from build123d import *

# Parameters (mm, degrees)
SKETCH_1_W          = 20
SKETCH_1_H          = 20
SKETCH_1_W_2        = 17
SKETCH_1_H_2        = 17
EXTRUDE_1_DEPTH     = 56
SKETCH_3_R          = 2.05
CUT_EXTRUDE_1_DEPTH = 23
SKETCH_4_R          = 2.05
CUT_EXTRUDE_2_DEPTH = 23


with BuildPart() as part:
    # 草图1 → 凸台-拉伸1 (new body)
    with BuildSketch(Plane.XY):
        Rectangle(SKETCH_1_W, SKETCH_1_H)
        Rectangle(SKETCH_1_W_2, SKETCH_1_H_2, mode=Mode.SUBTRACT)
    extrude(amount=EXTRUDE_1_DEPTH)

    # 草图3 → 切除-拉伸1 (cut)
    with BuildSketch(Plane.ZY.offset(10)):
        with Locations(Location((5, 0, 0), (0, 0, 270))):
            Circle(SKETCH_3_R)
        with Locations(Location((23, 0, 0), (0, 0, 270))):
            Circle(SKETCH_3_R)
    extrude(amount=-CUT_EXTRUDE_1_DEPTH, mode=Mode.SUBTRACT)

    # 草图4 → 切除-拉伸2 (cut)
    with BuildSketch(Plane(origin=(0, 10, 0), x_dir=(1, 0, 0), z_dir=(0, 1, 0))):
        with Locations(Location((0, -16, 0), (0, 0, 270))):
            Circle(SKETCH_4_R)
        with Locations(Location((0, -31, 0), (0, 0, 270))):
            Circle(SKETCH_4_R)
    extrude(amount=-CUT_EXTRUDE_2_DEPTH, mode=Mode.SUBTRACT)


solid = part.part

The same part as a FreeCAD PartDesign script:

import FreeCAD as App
import Part
import Sketcher
from FreeCAD import Vector
Q = App.Units.Quantity

doc = App.newDocument("Part")
params = doc.addObject("Spreadsheet::Sheet", "Params")
for row, (alias, value) in enumerate([
    ("sketch1_width", "20 mm"),
    ("sketch1_width2", "17 mm"),
    ("pad1_length", "56 mm"),
    ("sketch2_diameter", "4.1 mm"),
    ("pocket1_length", "23 mm"),
    ("sketch3_diameter", "4.1 mm"),
    ("pocket2_length", "23 mm"),
], start=1):
    params.set(f"A{row}", alias)
    params.set(f"B{row}", "=" + value)
    params.setAlias(f"B{row}", alias)

body = doc.addObject("PartDesign::Body", "Body")

sketch1 = doc.addObject("Sketcher::SketchObject", "Sketch")
body.addObject(sketch1)
sketch1.AttachmentSupport = (doc.XY_Plane, [""])
sketch1.MapMode = "FlatFace"
sketch1.addGeometry([
    Part.LineSegment(Vector(-10, 10, 0), Vector(-10, -10, 0)),
    Part.LineSegment(Vector(-10, -10, 0), Vector(10, -10, 0)),
    Part.LineSegment(Vector(10, -10, 0), Vector(10, 10, 0)),
    Part.LineSegment(Vector(10, 10, 0), Vector(-10, 10, 0)),
    Part.LineSegment(Vector(8, -8, 0), Vector(-8, -8, 0)),
    Part.LineSegment(Vector(-8, -8, 0), Vector(-8, 8, 0)),
    Part.LineSegment(Vector(-8, 8, 0), Vector(8, 8, 0)),
    Part.LineSegment(Vector(8, 8, 0), Vector(8, -8, 0)),
], False)
sketch1.addConstraint([
    Sketcher.Constraint("Coincident", 0, 2, 1, 1),
    Sketcher.Constraint("Coincident", 1, 2, 2, 1),
    Sketcher.Constraint("Coincident", 2, 2, 3, 1),
    Sketcher.Constraint("Coincident", 3, 2, 0, 1),
    Sketcher.Constraint("Coincident", 4, 2, 5, 1),
    Sketcher.Constraint("Coincident", 5, 2, 6, 1),
    Sketcher.Constraint("Coincident", 6, 2, 7, 1),
    Sketcher.Constraint("Coincident", 7, 2, 4, 1),
    Sketcher.Constraint("Vertical", 0),
    Sketcher.Constraint("Horizontal", 1),
    Sketcher.Constraint("Vertical", 2),
    Sketcher.Constraint("Horizontal", 3),
    Sketcher.Constraint("Horizontal", 4),
    Sketcher.Constraint("Vertical", 5),
    Sketcher.Constraint("Horizontal", 6),
    Sketcher.Constraint("Vertical", 7),
    Sketcher.Constraint("Symmetric", 0, 2, 2, 2, -1, 1),
    Sketcher.Constraint("Symmetric", 4, 2, 6, 2, -1, 1),
    Sketcher.Constraint("Equal", 3, 0),
    Sketcher.Constraint("Equal", 6, 5),
    Sketcher.Constraint("DistanceX", 1, 1, 1, 2, Q("20 mm")),
    Sketcher.Constraint("DistanceX", 4, 2, 4, 1, Q("17 mm")),
])
sketch1.setExpression("Constraints[20]", "Params.sketch1_width")
sketch1.setExpression("Constraints[21]", "Params.sketch1_width2")
pad1 = doc.addObject("PartDesign::Pad", "Pad")
body.addObject(pad1)
pad1.Profile = sketch1
pad1.setExpression("Length", "Params.pad1_length")

sketch2 = doc.addObject("Sketcher::SketchObject", "Sketch001")
body.addObject(sketch2)
sketch2.AttachmentSupport = (doc.YZ_Plane, [""])
sketch2.MapMode = "FlatFace"
sketch2.AttachmentOffset = App.Placement(Vector(0, 0, -10), App.Rotation())
sketch2.addGeometry([
    Part.Circle(Vector(0, 5, 0), Vector(0, 0, 1), 2),
    Part.Circle(Vector(0, 23, 0), Vector(0, 0, 1), 2),
], False)
sketch2.addConstraint([
    Sketcher.Constraint("Equal", 0, 1),
    Sketcher.Constraint("PointOnObject", 0, 3, -2),
    Sketcher.Constraint("PointOnObject", 1, 3, -2),
    Sketcher.Constraint("Diameter", 0, Q("4.1 mm")),
    Sketcher.Constraint("DistanceY", -1, 1, 0, 3, Q("5 mm")),
    Sketcher.Constraint("DistanceY", -1, 1, 1, 3, Q("23 mm")),
])
sketch2.setExpression("Constraints[3]", "Params.sketch2_diameter")
pocket1 = doc.addObject("PartDesign::Pocket", "Pocket")
body.addObject(pocket1)
pocket1.Profile = sketch2
pocket1.setExpression("Length", "Params.pocket1_length")
pocket1.Reversed = True

sketch3 = doc.addObject("Sketcher::SketchObject", "Sketch002")
body.addObject(sketch3)
sketch3.AttachmentSupport = (doc.XZ_Plane, [""])
sketch3.MapMode = "FlatFace"
sketch3.AttachmentOffset = App.Placement(Vector(0, 0, -10), App.Rotation())
sketch3.addGeometry([
    Part.Circle(Vector(0, 16, 0), Vector(0, 0, 1), 2),
    Part.Circle(Vector(0, 31, 0), Vector(0, 0, 1), 2),
], False)
sketch3.addConstraint([
    Sketcher.Constraint("Equal", 0, 1),
    Sketcher.Constraint("PointOnObject", 0, 3, -2),
    Sketcher.Constraint("PointOnObject", 1, 3, -2),
    Sketcher.Constraint("Diameter", 0, Q("4.1 mm")),
    Sketcher.Constraint("DistanceY", -1, 1, 0, 3, Q("16 mm")),
    Sketcher.Constraint("DistanceY", -1, 1, 1, 3, Q("31 mm")),
])
sketch3.setExpression("Constraints[3]", "Params.sketch3_diameter")
pocket2 = doc.addObject("PartDesign::Pocket", "Pocket001")
body.addObject(pocket2)
pocket2.Profile = sketch3
pocket2.setExpression("Length", "Params.pocket2_length")
pocket2.Reversed = True

doc.recompute()
